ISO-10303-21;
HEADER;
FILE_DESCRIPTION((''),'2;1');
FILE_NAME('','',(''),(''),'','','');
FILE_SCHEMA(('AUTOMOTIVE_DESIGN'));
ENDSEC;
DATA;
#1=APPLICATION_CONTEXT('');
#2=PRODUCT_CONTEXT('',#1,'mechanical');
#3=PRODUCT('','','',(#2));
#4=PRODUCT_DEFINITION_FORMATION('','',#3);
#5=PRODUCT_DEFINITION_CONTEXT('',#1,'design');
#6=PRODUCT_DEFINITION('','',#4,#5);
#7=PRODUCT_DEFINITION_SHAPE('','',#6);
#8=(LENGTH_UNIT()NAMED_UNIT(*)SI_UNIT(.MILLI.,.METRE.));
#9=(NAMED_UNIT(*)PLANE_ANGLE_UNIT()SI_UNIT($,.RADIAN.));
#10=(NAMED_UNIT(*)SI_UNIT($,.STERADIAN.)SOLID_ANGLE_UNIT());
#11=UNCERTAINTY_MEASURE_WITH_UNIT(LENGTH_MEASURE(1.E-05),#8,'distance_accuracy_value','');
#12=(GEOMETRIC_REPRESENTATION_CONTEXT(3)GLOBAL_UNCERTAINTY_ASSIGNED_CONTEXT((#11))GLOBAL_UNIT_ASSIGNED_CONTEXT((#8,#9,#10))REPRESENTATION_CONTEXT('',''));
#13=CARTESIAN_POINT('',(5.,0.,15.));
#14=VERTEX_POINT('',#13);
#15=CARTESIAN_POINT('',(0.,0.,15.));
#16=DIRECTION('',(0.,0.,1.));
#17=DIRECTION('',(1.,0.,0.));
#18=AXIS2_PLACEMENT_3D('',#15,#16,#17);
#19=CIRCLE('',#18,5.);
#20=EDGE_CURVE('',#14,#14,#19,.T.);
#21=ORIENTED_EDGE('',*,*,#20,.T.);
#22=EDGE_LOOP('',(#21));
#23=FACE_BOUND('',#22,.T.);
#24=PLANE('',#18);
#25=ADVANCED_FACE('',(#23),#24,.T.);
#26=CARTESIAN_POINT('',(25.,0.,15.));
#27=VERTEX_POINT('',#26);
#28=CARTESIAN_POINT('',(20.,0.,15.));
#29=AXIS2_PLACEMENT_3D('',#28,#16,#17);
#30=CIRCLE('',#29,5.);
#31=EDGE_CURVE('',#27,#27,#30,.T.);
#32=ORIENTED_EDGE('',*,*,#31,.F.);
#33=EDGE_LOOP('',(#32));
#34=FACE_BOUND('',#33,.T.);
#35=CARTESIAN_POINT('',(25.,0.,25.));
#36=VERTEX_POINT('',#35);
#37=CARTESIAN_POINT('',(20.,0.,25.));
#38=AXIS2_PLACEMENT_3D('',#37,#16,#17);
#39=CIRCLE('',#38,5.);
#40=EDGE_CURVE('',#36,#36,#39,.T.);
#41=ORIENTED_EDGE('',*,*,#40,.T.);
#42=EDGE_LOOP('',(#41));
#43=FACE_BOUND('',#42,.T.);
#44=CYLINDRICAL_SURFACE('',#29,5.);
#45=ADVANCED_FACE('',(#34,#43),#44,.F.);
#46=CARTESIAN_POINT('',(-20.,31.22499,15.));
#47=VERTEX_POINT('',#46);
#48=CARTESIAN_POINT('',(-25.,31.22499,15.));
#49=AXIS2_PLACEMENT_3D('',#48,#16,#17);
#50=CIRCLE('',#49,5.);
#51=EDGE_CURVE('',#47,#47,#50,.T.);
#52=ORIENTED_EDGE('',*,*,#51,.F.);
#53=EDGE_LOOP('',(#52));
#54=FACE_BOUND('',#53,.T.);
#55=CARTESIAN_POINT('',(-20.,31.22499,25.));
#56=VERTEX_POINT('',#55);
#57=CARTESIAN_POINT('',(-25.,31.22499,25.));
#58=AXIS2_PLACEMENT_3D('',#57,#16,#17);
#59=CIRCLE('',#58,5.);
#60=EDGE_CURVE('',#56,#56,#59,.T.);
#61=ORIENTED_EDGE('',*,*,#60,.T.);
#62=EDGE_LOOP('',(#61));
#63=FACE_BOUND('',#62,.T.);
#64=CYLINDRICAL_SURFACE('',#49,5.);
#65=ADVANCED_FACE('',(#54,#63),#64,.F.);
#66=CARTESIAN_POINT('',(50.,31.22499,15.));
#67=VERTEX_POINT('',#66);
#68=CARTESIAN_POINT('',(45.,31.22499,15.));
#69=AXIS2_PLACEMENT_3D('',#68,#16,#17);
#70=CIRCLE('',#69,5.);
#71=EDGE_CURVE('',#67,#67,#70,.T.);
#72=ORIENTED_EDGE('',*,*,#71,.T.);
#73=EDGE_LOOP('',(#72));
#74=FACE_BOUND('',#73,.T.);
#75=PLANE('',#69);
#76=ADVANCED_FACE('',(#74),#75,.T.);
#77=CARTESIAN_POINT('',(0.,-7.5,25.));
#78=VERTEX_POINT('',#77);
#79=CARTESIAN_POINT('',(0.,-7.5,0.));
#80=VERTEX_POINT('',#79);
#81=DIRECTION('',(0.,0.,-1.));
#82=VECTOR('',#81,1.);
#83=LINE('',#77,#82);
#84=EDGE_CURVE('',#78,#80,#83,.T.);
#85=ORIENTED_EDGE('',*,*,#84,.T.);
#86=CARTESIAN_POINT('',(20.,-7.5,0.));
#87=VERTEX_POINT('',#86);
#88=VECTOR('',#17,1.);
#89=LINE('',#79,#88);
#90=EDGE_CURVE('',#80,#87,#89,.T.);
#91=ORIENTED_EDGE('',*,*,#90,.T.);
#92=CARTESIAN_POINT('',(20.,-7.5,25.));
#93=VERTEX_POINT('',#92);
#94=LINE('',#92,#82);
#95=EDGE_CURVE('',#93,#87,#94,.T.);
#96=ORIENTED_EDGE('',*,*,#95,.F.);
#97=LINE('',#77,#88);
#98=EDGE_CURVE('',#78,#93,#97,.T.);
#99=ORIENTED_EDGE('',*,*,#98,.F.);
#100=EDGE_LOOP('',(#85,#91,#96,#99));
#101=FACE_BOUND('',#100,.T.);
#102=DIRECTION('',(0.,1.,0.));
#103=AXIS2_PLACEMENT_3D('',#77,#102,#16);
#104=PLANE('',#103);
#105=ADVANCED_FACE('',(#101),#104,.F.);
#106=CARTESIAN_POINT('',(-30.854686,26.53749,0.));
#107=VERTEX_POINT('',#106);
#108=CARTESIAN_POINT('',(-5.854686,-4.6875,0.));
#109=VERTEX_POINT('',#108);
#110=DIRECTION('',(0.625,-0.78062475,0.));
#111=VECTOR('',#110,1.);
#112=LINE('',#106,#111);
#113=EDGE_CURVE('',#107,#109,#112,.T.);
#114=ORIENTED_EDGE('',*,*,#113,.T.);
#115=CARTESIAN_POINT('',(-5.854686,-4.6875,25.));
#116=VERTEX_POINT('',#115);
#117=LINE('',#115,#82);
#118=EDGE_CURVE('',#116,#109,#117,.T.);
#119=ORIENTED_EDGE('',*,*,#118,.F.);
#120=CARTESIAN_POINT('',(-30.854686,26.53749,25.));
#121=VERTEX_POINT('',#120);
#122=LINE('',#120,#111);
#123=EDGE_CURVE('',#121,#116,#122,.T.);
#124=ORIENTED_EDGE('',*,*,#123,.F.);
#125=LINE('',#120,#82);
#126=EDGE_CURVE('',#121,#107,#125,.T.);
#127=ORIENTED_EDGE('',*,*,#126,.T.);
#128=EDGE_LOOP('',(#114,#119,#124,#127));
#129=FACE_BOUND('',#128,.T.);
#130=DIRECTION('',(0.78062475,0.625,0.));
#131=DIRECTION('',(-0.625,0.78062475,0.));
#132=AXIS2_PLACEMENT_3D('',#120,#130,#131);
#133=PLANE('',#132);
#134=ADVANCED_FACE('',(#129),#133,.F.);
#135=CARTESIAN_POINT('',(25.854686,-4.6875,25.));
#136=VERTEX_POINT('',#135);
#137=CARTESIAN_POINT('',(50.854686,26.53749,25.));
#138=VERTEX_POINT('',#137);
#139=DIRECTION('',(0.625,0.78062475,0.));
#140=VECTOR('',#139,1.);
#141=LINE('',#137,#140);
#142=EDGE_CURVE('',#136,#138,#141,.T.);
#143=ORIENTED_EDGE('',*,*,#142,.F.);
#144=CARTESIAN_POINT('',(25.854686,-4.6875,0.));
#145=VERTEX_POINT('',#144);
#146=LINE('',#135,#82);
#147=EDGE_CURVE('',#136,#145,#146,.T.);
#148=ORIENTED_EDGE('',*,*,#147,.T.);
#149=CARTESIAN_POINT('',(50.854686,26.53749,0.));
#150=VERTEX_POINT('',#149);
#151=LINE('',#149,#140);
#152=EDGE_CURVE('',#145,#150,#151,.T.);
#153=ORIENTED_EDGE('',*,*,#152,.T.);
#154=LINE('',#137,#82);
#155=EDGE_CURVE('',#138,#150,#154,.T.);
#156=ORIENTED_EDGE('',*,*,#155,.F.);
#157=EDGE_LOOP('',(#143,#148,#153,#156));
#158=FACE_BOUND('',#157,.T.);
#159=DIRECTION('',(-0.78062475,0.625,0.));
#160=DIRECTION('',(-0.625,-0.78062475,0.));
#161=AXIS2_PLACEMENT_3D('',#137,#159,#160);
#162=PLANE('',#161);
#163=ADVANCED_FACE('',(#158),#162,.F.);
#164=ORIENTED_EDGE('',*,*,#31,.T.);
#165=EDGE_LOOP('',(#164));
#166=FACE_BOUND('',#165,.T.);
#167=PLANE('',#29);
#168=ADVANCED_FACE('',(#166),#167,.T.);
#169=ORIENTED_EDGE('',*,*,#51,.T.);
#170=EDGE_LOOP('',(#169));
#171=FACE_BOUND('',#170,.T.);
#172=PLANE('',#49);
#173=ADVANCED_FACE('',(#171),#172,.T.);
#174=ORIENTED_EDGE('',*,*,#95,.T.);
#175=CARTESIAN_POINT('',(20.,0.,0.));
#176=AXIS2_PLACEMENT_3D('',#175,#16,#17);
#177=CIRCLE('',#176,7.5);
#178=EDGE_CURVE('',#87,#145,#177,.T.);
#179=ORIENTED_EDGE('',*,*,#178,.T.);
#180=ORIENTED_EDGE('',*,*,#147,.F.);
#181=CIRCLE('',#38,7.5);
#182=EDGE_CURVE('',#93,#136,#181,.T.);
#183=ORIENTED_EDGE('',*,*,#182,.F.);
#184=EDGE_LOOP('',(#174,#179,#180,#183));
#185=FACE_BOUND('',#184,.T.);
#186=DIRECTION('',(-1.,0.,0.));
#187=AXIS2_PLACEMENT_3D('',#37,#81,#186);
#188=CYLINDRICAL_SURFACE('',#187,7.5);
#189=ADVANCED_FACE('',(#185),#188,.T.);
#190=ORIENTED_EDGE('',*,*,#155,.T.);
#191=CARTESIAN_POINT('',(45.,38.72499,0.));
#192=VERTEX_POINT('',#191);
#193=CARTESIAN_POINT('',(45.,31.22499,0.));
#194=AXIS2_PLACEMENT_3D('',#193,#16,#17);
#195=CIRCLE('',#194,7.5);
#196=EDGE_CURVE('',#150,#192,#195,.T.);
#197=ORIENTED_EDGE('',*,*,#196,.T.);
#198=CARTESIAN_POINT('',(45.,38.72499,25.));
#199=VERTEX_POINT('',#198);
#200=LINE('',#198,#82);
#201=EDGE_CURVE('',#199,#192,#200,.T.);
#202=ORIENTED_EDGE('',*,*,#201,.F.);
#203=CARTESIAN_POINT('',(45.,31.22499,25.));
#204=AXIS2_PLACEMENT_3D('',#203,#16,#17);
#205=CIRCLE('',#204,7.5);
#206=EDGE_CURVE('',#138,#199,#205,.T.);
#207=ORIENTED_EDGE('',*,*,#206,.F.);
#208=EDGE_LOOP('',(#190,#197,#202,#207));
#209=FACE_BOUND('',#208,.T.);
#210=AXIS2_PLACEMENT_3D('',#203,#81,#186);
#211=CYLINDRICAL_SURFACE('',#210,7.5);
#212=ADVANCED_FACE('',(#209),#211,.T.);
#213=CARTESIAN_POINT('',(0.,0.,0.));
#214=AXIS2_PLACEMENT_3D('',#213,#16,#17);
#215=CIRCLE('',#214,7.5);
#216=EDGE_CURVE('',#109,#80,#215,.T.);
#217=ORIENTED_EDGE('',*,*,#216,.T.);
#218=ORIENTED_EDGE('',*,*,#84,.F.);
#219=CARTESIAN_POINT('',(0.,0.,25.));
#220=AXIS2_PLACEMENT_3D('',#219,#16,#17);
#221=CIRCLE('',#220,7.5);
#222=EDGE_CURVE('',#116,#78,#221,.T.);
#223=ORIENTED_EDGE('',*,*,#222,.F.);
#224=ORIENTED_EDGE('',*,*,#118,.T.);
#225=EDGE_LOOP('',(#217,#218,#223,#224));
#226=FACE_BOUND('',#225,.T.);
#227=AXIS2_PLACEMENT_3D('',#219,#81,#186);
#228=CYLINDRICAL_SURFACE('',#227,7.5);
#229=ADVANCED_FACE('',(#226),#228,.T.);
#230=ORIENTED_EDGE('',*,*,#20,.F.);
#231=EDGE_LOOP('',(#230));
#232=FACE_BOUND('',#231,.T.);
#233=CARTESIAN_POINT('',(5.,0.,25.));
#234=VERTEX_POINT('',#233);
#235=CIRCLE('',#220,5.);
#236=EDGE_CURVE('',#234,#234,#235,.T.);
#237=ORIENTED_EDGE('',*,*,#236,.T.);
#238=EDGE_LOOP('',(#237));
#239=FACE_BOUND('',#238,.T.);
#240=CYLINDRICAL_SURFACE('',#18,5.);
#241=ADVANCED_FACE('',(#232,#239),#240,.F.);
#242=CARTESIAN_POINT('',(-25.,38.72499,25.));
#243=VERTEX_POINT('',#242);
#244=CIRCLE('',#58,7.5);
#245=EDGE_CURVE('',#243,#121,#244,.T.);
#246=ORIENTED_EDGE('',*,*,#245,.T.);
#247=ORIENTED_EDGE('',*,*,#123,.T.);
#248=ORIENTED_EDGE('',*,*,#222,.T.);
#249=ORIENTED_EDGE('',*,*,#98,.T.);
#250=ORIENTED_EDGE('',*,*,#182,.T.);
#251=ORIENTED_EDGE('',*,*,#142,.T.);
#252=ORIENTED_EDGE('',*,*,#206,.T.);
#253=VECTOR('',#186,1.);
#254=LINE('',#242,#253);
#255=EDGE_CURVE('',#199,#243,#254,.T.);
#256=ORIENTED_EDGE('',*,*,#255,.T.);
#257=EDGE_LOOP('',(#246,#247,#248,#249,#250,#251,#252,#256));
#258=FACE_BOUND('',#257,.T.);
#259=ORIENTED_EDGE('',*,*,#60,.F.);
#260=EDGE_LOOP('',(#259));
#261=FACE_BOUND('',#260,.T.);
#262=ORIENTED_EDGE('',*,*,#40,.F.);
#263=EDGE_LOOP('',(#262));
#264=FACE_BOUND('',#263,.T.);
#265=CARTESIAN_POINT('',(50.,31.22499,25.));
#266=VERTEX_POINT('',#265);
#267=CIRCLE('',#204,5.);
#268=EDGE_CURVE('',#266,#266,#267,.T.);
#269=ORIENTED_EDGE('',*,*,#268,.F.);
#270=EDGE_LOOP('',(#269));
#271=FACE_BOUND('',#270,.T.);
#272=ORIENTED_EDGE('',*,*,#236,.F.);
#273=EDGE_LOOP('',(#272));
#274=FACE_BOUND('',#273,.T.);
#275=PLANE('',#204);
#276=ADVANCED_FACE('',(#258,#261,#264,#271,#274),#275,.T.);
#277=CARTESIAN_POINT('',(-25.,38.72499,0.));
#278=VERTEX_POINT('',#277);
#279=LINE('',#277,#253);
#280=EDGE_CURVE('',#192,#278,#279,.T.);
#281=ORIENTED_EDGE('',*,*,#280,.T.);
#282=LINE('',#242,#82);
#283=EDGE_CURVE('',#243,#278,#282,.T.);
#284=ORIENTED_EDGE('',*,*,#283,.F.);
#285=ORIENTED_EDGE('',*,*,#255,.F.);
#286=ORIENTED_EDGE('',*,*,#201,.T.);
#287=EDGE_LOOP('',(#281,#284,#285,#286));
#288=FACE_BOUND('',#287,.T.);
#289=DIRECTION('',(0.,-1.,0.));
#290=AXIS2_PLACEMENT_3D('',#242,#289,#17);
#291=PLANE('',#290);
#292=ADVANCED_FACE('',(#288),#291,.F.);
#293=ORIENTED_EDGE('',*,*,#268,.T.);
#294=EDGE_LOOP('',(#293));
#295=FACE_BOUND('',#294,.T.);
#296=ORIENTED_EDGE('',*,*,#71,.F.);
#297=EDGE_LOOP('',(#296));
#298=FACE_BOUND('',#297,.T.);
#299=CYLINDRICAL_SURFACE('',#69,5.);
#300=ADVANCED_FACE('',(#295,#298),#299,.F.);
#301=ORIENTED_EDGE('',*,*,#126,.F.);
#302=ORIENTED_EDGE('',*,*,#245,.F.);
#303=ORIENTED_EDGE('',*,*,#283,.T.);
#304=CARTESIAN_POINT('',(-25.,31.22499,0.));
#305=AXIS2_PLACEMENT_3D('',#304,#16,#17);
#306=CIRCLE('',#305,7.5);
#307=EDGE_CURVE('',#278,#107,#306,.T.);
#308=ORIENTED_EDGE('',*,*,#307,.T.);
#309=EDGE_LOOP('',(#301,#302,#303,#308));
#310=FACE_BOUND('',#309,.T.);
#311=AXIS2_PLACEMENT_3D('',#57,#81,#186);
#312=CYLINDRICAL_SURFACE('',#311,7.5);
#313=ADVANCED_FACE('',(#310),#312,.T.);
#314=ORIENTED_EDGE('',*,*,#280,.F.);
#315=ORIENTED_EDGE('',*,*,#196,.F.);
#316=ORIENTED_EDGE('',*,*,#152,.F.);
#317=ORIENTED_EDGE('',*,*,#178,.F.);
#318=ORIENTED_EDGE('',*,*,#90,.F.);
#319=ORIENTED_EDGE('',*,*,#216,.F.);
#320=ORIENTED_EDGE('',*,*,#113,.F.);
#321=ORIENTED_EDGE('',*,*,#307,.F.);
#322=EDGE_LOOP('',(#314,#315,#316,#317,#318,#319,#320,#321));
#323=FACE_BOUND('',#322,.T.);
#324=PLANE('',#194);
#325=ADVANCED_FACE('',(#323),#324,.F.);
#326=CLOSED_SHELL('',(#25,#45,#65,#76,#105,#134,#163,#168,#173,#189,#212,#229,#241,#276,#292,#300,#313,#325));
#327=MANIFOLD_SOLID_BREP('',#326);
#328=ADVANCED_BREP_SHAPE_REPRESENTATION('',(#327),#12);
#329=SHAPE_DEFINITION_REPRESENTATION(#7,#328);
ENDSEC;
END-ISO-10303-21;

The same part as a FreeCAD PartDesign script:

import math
import FreeCAD as App
import Part
import Sketcher

V = App.Vector
Q = App.Units.Quantity

doc = App.newDocument("Part")
body = doc.addObject("PartDesign::Body", "Body")

# Sketch on XY plane
sketch1 = doc.addObject("Sketcher::SketchObject", "Sketch")
body.addObject(sketch1)
sketch1.AttachmentSupport = (doc.XY_Plane, [""])
sketch1.MapMode = "FlatFace"
sketch1.addGeometry([
    Part.LineSegment(V(0, -8, 0), V(20, -8, 0)),  # 0
    Part.ArcOfCircle(Part.Circle(V(20, 0, 0), V(0, 0, 1), 8), math.radians(-90), math.radians(-39)),  # 1
    Part.LineSegment(V(26, -5, 0), V(51, 27, 0)),  # 2
    Part.ArcOfCircle(Part.Circle(V(45, 31, 0), V(0, 0, 1), 8), math.radians(-39), math.radians(90)),  # 3
    Part.LineSegment(V(45, 39, 0), V(-25, 39, 0)),  # 4
    Part.ArcOfCircle(Part.Circle(V(-25, 31, 0), V(0, 0, 1), 8), math.radians(90), math.radians(219)),  # 5
    Part.LineSegment(V(-31, 27, 0), V(-6, -5, 0)),  # 6
    Part.ArcOfCircle(Part.Circle(V(0, 0, 0), V(0, 0, 1), 8), math.radians(-141), math.radians(-90)),  # 7
], False)
sketch1.addConstraint([
    Sketcher.Constraint("Tangent", 0, 2, 1, 1),
    Sketcher.Constraint("Tangent", 1, 2, 2, 1),
    Sketcher.Constraint("Tangent", 2, 2, 3, 1),
    Sketcher.Constraint("Tangent", 3, 2, 4, 1),
    Sketcher.Constraint("Tangent", 4, 2, 5, 1),
    Sketcher.Constraint("Tangent", 5, 2, 6, 1),
    Sketcher.Constraint("Tangent", 6, 2, 7, 1),
    Sketcher.Constraint("Tangent", 7, 2, 0, 1),
    Sketcher.Constraint("Horizontal", 0),
    Sketcher.Constraint("Horizontal", 4),
    Sketcher.Constraint("Coincident", 7, 3, -1, 1),
    Sketcher.Constraint("Equal", 1, 3),
    Sketcher.Constraint("Equal", 3, 5),
    Sketcher.Constraint("Equal", 5, 7),
    Sketcher.Constraint("Horizontal", 2, 2, 5, 2),
    Sketcher.Constraint("Radius", 1, Q("7.5 mm")),
    Sketcher.Constraint("DistanceX", 0, 1, 0, 2, Q("20 mm")),
    Sketcher.Constraint("DistanceX", 4, 2, 4, 1, Q("70 mm")),
    Sketcher.Constraint("Distance", 2, Q("40 mm")),
])
pad1 = doc.addObject("PartDesign::Pad", "Pad")
body.addObject(pad1)
pad1.Profile = sketch1
pad1.Length = 25

# Sketch on XY plane
sketch2 = doc.addObject("Sketcher::SketchObject", "Sketch001")
body.addObject(sketch2)
sketch2.AttachmentSupport = (doc.XY_Plane, [""])
sketch2.MapMode = "FlatFace"
sketch2.AttachmentOffset = App.Placement(V(0, 0, 25), App.Rotation())
sketch2.addGeometry([
    Part.Circle(V(-25, 31, 0), V(0, 0, 1), 5),
    Part.Circle(V(0, 0, 0), V(0, 0, 1), 5),
    Part.Circle(V(20, 0, 0), V(0, 0, 1), 5),
    Part.Circle(V(45, 31, 0), V(0, 0, 1), 5),
], False)
sketch2.addConstraint([
    Sketcher.Constraint("Coincident", 1, 3, -1, 1),
    Sketcher.Constraint("Equal", 0, 1),
    Sketcher.Constraint("Equal", 1, 2),
    Sketcher.Constraint("Equal", 2, 3),
    Sketcher.Constraint("PointOnObject", 2, 3, -1),
    Sketcher.Constraint("Horizontal", 0, 3, 3, 3),
    Sketcher.Constraint("Diameter", 0, Q("10 mm")),
    Sketcher.Constraint("DistanceX", 0, 3, -1, 1, Q("25 mm")),
    Sketcher.Constraint("DistanceX", -1, 1, 2, 3, Q("20 mm")),
    Sketcher.Constraint("DistanceX", -1, 1, 3, 3, Q("45 mm")),
    Sketcher.Constraint("DistanceY", -1, 1, 0, 3, Q("31.22499 mm")),
])
pocket1 = doc.addObject("PartDesign::Pocket", "Pocket")
body.addObject(pocket1)
pocket1.Profile = sketch2
pocket1.Length = 10

doc.recompute()
